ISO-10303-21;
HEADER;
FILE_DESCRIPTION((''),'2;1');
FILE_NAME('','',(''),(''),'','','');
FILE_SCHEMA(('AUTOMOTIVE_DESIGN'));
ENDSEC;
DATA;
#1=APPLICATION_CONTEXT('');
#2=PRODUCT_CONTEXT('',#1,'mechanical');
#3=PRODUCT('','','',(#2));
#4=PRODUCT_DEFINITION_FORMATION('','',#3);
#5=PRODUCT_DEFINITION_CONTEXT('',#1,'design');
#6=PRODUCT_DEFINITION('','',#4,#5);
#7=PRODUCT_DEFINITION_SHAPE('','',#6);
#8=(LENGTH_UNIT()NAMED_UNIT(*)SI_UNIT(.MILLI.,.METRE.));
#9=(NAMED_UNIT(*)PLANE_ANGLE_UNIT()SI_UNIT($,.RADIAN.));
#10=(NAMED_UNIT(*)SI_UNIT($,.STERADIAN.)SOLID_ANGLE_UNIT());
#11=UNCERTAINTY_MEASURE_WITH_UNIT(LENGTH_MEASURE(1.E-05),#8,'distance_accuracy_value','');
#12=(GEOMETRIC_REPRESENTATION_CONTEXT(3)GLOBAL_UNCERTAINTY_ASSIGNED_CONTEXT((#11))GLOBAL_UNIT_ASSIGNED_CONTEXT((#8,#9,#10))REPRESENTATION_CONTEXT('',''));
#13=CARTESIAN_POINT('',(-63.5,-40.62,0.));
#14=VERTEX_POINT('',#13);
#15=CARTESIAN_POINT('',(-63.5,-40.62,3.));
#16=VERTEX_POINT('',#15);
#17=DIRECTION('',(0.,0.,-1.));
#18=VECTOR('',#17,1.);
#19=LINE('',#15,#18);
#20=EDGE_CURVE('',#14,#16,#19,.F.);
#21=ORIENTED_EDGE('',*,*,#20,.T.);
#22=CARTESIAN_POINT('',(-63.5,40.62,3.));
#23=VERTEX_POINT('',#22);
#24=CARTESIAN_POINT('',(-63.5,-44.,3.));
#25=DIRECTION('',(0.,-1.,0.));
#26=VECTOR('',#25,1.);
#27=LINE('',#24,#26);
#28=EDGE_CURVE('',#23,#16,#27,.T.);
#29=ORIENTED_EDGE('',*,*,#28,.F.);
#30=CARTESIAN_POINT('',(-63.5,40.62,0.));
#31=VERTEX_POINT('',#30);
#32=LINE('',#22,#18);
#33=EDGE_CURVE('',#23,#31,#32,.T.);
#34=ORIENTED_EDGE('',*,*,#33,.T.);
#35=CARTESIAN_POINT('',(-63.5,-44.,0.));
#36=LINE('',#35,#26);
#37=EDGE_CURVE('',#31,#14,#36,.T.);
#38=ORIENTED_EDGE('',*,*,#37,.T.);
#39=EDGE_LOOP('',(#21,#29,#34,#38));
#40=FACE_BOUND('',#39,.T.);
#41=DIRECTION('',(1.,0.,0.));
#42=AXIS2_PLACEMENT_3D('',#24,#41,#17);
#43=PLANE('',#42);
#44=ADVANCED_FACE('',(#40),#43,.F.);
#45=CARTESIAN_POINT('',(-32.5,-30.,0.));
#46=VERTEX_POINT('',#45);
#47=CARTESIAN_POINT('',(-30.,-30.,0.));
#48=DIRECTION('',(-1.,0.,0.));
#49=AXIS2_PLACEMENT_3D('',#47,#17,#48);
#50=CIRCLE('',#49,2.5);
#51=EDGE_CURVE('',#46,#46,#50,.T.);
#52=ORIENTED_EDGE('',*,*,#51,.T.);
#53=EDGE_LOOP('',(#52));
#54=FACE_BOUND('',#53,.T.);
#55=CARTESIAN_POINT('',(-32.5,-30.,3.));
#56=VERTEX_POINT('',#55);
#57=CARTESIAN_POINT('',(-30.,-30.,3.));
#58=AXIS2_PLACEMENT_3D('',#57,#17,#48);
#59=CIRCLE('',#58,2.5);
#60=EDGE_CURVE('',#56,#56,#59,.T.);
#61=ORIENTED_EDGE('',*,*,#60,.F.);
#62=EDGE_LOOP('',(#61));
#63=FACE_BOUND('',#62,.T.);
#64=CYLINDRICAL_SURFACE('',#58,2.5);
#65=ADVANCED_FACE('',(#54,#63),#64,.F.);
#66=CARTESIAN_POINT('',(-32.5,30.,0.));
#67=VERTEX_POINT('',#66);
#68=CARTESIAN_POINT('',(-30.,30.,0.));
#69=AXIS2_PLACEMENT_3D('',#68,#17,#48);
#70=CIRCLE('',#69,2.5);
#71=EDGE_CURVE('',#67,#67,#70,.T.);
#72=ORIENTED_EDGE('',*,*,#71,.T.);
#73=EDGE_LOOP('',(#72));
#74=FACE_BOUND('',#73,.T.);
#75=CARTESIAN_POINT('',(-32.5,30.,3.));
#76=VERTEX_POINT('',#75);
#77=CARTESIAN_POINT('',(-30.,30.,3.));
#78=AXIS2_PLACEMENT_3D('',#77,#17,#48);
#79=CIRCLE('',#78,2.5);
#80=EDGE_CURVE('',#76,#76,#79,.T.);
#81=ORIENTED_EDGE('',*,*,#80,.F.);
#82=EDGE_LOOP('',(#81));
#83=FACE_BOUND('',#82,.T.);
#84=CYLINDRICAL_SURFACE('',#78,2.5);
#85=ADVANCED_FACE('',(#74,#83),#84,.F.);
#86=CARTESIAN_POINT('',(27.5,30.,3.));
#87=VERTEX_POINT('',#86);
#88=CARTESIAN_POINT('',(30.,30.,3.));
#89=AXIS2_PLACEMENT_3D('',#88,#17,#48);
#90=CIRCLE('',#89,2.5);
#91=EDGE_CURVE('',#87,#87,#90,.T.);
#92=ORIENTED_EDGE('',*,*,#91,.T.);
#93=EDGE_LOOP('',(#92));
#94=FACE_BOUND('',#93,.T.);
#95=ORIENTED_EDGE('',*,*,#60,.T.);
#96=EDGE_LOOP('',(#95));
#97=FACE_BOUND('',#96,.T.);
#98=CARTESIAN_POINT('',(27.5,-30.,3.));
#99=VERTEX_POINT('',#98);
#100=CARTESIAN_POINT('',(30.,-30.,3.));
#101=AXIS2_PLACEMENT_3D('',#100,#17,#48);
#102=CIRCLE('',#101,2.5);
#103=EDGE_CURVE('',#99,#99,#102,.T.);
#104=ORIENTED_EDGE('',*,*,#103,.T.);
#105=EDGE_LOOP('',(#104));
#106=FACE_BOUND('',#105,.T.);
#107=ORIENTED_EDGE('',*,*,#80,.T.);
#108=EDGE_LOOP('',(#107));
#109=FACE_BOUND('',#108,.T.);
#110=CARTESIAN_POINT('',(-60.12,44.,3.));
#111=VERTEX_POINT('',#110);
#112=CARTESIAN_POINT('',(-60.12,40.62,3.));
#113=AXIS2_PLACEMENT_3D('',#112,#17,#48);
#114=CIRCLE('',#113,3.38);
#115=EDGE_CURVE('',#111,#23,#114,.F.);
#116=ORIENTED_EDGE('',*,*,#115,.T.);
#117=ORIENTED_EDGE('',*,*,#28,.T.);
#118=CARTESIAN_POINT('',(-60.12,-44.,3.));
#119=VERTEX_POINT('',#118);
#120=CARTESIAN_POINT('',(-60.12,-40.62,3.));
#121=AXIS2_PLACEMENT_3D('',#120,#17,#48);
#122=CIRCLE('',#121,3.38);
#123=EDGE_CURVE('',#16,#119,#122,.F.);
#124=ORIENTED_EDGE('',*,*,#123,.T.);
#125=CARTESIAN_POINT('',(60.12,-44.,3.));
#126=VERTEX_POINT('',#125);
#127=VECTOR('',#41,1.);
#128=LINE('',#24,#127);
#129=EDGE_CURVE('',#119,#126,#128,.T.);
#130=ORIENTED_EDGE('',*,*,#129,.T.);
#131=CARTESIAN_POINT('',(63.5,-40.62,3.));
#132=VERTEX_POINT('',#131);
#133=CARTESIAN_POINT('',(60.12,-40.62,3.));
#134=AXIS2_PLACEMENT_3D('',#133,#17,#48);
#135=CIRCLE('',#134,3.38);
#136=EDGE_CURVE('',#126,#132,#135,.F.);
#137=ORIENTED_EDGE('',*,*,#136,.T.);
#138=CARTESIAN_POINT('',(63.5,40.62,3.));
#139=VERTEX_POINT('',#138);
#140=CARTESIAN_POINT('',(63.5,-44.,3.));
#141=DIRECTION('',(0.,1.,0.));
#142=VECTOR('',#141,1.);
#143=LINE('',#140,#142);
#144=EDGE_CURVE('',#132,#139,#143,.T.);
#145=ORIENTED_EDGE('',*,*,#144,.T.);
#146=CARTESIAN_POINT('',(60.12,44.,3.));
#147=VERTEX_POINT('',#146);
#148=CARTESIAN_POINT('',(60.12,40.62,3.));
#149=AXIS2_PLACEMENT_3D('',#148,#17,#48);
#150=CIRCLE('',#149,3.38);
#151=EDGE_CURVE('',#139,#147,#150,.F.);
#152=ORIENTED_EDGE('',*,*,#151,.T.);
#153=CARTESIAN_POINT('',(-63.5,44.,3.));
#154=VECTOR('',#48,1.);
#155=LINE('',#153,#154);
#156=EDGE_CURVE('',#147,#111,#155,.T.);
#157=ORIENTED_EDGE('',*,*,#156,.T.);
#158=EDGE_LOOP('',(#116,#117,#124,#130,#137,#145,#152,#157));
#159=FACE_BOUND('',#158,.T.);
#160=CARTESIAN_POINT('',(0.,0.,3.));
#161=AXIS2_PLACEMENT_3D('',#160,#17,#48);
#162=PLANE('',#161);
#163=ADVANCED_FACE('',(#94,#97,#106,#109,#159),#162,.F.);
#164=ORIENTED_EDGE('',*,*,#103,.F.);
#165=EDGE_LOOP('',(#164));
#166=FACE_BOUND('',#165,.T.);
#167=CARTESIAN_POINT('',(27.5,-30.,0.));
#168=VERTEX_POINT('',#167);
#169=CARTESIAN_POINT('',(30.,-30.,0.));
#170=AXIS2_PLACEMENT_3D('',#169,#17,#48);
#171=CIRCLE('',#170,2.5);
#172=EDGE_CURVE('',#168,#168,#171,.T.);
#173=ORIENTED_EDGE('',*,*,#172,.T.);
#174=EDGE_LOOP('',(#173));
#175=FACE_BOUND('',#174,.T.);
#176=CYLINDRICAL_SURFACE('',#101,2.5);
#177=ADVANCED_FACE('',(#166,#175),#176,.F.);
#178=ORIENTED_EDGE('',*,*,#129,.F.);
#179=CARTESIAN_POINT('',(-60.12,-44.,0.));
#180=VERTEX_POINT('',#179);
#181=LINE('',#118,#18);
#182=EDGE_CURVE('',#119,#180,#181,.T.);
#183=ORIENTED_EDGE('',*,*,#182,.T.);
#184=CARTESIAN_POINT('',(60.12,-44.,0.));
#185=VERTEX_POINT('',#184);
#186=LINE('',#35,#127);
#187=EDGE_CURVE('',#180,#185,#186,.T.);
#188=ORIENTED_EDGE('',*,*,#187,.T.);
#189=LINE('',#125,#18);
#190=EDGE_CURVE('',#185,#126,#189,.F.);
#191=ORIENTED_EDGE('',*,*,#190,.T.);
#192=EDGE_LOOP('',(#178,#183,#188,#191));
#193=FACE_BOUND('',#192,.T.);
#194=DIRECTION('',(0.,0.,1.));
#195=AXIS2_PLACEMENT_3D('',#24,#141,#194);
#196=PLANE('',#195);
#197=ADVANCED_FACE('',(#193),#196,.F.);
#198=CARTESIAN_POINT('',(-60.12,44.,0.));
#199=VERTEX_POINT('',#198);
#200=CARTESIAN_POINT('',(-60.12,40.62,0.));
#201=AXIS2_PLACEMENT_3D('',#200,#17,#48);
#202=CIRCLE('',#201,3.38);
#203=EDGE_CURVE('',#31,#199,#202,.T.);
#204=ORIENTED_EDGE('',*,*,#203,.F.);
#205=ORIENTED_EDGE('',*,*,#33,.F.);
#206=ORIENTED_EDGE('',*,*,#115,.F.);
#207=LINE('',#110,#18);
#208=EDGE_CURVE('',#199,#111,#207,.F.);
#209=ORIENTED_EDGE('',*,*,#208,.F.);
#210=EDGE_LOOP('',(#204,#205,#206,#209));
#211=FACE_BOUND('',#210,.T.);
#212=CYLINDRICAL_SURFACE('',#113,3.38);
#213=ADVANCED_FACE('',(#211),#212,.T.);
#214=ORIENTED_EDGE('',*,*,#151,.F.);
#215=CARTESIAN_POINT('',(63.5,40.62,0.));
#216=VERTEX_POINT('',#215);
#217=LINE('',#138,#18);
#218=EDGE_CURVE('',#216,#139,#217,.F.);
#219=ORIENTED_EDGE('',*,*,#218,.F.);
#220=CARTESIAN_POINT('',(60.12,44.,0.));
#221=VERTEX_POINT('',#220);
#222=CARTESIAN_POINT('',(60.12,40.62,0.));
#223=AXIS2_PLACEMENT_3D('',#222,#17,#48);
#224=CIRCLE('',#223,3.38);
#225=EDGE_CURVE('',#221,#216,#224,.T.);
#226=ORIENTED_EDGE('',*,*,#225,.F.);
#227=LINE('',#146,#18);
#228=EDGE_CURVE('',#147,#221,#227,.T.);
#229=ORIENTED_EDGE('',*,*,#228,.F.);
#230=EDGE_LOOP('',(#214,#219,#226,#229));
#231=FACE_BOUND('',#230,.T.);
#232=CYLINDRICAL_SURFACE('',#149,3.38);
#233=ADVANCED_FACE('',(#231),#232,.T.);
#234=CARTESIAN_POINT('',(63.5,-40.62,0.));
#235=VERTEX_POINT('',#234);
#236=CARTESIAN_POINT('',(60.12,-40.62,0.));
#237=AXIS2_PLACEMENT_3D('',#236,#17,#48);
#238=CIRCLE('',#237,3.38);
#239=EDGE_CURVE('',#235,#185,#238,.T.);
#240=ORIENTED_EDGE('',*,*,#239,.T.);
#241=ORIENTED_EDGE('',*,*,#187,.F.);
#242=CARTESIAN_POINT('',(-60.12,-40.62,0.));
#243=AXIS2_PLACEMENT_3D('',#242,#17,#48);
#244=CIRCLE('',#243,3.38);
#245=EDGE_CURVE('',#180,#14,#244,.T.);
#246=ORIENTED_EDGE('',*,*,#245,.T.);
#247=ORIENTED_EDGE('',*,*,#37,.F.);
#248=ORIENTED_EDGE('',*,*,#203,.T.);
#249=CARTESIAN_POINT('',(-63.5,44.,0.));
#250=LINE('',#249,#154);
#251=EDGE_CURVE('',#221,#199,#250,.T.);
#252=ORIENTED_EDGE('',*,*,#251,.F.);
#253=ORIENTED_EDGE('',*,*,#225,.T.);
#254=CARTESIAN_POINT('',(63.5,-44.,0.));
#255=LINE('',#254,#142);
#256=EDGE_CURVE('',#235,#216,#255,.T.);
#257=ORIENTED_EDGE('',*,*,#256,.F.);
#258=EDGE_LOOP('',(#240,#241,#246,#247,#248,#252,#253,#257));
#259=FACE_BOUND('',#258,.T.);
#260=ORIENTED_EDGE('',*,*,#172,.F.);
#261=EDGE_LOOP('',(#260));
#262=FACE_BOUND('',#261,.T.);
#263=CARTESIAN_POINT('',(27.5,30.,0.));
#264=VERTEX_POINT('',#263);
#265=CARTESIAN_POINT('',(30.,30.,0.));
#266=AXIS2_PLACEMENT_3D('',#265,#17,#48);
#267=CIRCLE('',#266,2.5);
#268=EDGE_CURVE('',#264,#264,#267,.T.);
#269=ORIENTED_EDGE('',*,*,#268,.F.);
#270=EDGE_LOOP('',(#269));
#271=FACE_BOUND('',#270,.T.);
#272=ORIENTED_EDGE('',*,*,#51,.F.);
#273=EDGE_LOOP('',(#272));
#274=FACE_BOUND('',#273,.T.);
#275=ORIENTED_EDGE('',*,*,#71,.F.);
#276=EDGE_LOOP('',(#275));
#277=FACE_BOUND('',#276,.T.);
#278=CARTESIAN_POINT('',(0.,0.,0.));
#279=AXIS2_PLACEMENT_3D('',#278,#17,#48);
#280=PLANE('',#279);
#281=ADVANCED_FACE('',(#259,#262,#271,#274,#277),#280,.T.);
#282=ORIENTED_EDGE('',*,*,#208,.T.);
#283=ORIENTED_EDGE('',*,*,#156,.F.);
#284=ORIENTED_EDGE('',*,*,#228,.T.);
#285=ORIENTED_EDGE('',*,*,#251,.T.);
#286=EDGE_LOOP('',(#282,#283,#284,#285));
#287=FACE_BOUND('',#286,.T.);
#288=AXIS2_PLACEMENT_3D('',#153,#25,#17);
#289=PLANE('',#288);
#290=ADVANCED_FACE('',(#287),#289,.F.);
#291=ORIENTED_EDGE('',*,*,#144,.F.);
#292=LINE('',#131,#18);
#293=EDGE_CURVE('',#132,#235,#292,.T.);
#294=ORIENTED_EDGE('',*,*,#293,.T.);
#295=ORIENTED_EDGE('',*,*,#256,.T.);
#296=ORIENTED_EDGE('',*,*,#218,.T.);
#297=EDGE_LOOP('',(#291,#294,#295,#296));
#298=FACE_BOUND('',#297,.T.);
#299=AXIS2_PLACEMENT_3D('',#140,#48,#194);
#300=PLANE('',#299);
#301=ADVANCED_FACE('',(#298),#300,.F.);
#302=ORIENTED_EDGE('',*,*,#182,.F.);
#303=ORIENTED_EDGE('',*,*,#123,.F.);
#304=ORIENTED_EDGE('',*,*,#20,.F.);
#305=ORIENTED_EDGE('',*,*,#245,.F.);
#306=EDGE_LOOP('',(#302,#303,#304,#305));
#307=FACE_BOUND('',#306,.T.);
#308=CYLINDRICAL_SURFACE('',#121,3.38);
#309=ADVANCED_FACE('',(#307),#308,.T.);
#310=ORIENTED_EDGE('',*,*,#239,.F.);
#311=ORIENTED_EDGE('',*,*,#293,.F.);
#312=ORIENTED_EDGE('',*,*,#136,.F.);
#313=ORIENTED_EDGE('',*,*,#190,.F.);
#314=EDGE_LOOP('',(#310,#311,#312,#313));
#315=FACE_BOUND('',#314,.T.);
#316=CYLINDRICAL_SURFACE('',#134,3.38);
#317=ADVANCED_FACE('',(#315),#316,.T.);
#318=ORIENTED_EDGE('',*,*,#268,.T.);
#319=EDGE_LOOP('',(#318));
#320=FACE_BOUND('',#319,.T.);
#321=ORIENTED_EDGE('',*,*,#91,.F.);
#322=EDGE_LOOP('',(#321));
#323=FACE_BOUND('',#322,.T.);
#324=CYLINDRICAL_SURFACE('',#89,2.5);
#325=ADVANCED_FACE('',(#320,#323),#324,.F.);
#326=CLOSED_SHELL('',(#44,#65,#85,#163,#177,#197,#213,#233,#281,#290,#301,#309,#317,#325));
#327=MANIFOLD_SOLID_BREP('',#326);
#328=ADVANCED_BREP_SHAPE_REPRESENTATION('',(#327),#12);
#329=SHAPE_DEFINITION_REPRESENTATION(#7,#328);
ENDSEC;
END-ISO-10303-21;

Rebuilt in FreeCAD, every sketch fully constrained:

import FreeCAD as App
import Part
import Sketcher
from FreeCAD import Vector
Q = App.Units.Quantity


def edges_at(feature, points):
    """Names of the edges that pass closest to the given points."""
    edges = feature.Shape.Edges
    near = lambda p: min(range(len(edges)), key=lambda i: edges[i].distToShape(Part.Vertex(*p))[0])
    return sorted({f"Edge{near(p) + 1}" for p in points})


def add_polygon(sketch, points):
    """Adds a closed chain of lines whose ends are joined by coincident constraints."""
    first, n = sketch.GeometryCount, len(points)
    for a, b in zip(points, points[1:] + points[:1]):
        sketch.addGeometry(Part.LineSegment(App.Vector(*a, 0), App.Vector(*b, 0)), False)
    for i in range(n):
        sketch.addConstraint(Sketcher.Constraint("Coincident", first + i, 2, first + (i + 1) % n, 1))

doc = App.newDocument("Part")
params = doc.addObject("Spreadsheet::Sheet", "Params")
for row, (alias, value) in enumerate([
    ("sketch1_width", "127 mm"),
    ("sketch1_height", "88 mm"),
    ("pad1_length", "3 mm"),
    ("fillet_radius", "3.38 mm"),
    ("sketch2_diameter", "5 mm"),
], start=1):
    params.set(f"A{row}", alias)
    params.set(f"B{row}", "=" + value)
    params.setAlias(f"B{row}", alias)

body = doc.addObject("PartDesign::Body", "Body")

sketch1 = doc.addObject("Sketcher::SketchObject", "Sketch")
body.addObject(sketch1)
sketch1.AttachmentSupport = (doc.XY_Plane, [""])
sketch1.MapMode = "FlatFace"
add_polygon(sketch1, [(-64, 44), (-64, -44), (64, -44), (64, 44)])
sketch1.addConstraint([
    Sketcher.Constraint("Vertical", 0),
    Sketcher.Constraint("Horizontal", 1),
    Sketcher.Constraint("Vertical", 2),
    Sketcher.Constraint("Horizontal", 3),
    Sketcher.Constraint("Symmetric", 0, 2, 2, 2, -1, 1),
    Sketcher.Constraint("DistanceX", 1, 1, 1, 2, Q("127 mm")),
    Sketcher.Constraint("DistanceY", 0, 2, 0, 1, Q("88 mm")),
])
sketch1.setExpression("Constraints[9]", "Params.sketch1_width")
sketch1.setExpression("Constraints[10]", "Params.sketch1_height")
pad1 = doc.addObject("PartDesign::Pad", "Pad")
body.addObject(pad1)
pad1.Profile = sketch1
pad1.setExpression("Length", "Params.pad1_length")
doc.recompute()

fillet = doc.addObject("PartDesign::Fillet", "Fillet")
body.addObject(fillet)
fillet.Base = (pad1, edges_at(pad1, [
    (63.5, -44, 1.5),
    (-63.5, -44, 1.5),
    (-63.5, 44, 1.5),
    (63.5, 44, 1.5),
]))
fillet.setExpression("Radius", "Params.fillet_radius")

sketch2 = doc.addObject("Sketcher::SketchObject", "Sketch001")
body.addObject(sketch2)
sketch2.AttachmentSupport = (doc.XY_Plane, [""])
sketch2.MapMode = "FlatFace"
sketch2.addGeometry([
    Part.Circle(Vector(30, -30, 0), Vector(0, 0, 1), 2.5),
    Part.Circle(Vector(30, 30, 0), Vector(0, 0, 1), 2.5),
    Part.Circle(Vector(-30, 30, 0), Vector(0, 0, 1), 2.5),
    Part.Circle(Vector(-30, -30, 0), Vector(0, 0, 1), 2.5),
], False)
sketch2.addConstraint([
    Sketcher.Constraint("Equal", 0, 1),
    Sketcher.Constraint("Equal", 1, 2),
    Sketcher.Constraint("Equal", 2, 3),
    Sketcher.Constraint("Symmetric", 0, 3, 2, 3, -1, 1),
    Sketcher.Constraint("Symmetric", 1, 3, 3, 3, -1, 1),
    Sketcher.Constraint("Symmetric", 1, 3, 2, 3, -2),
    Sketcher.Constraint("Diameter", 0, Q("5 mm")),
    Sketcher.Constraint("DistanceX", -1, 1, 0, 3, Q("30 mm")),
    Sketcher.Constraint("DistanceY", 0, 3, -1, 1, Q("30 mm")),
])
sketch2.setExpression("Constraints[6]", "Params.sketch2_diameter")
pocket1 = doc.addObject("PartDesign::Pocket", "Pocket")
body.addObject(pocket1)
pocket1.Profile = sketch2
pocket1.Type = "ThroughAll"
pocket1.Reversed = True

doc.recompute()
